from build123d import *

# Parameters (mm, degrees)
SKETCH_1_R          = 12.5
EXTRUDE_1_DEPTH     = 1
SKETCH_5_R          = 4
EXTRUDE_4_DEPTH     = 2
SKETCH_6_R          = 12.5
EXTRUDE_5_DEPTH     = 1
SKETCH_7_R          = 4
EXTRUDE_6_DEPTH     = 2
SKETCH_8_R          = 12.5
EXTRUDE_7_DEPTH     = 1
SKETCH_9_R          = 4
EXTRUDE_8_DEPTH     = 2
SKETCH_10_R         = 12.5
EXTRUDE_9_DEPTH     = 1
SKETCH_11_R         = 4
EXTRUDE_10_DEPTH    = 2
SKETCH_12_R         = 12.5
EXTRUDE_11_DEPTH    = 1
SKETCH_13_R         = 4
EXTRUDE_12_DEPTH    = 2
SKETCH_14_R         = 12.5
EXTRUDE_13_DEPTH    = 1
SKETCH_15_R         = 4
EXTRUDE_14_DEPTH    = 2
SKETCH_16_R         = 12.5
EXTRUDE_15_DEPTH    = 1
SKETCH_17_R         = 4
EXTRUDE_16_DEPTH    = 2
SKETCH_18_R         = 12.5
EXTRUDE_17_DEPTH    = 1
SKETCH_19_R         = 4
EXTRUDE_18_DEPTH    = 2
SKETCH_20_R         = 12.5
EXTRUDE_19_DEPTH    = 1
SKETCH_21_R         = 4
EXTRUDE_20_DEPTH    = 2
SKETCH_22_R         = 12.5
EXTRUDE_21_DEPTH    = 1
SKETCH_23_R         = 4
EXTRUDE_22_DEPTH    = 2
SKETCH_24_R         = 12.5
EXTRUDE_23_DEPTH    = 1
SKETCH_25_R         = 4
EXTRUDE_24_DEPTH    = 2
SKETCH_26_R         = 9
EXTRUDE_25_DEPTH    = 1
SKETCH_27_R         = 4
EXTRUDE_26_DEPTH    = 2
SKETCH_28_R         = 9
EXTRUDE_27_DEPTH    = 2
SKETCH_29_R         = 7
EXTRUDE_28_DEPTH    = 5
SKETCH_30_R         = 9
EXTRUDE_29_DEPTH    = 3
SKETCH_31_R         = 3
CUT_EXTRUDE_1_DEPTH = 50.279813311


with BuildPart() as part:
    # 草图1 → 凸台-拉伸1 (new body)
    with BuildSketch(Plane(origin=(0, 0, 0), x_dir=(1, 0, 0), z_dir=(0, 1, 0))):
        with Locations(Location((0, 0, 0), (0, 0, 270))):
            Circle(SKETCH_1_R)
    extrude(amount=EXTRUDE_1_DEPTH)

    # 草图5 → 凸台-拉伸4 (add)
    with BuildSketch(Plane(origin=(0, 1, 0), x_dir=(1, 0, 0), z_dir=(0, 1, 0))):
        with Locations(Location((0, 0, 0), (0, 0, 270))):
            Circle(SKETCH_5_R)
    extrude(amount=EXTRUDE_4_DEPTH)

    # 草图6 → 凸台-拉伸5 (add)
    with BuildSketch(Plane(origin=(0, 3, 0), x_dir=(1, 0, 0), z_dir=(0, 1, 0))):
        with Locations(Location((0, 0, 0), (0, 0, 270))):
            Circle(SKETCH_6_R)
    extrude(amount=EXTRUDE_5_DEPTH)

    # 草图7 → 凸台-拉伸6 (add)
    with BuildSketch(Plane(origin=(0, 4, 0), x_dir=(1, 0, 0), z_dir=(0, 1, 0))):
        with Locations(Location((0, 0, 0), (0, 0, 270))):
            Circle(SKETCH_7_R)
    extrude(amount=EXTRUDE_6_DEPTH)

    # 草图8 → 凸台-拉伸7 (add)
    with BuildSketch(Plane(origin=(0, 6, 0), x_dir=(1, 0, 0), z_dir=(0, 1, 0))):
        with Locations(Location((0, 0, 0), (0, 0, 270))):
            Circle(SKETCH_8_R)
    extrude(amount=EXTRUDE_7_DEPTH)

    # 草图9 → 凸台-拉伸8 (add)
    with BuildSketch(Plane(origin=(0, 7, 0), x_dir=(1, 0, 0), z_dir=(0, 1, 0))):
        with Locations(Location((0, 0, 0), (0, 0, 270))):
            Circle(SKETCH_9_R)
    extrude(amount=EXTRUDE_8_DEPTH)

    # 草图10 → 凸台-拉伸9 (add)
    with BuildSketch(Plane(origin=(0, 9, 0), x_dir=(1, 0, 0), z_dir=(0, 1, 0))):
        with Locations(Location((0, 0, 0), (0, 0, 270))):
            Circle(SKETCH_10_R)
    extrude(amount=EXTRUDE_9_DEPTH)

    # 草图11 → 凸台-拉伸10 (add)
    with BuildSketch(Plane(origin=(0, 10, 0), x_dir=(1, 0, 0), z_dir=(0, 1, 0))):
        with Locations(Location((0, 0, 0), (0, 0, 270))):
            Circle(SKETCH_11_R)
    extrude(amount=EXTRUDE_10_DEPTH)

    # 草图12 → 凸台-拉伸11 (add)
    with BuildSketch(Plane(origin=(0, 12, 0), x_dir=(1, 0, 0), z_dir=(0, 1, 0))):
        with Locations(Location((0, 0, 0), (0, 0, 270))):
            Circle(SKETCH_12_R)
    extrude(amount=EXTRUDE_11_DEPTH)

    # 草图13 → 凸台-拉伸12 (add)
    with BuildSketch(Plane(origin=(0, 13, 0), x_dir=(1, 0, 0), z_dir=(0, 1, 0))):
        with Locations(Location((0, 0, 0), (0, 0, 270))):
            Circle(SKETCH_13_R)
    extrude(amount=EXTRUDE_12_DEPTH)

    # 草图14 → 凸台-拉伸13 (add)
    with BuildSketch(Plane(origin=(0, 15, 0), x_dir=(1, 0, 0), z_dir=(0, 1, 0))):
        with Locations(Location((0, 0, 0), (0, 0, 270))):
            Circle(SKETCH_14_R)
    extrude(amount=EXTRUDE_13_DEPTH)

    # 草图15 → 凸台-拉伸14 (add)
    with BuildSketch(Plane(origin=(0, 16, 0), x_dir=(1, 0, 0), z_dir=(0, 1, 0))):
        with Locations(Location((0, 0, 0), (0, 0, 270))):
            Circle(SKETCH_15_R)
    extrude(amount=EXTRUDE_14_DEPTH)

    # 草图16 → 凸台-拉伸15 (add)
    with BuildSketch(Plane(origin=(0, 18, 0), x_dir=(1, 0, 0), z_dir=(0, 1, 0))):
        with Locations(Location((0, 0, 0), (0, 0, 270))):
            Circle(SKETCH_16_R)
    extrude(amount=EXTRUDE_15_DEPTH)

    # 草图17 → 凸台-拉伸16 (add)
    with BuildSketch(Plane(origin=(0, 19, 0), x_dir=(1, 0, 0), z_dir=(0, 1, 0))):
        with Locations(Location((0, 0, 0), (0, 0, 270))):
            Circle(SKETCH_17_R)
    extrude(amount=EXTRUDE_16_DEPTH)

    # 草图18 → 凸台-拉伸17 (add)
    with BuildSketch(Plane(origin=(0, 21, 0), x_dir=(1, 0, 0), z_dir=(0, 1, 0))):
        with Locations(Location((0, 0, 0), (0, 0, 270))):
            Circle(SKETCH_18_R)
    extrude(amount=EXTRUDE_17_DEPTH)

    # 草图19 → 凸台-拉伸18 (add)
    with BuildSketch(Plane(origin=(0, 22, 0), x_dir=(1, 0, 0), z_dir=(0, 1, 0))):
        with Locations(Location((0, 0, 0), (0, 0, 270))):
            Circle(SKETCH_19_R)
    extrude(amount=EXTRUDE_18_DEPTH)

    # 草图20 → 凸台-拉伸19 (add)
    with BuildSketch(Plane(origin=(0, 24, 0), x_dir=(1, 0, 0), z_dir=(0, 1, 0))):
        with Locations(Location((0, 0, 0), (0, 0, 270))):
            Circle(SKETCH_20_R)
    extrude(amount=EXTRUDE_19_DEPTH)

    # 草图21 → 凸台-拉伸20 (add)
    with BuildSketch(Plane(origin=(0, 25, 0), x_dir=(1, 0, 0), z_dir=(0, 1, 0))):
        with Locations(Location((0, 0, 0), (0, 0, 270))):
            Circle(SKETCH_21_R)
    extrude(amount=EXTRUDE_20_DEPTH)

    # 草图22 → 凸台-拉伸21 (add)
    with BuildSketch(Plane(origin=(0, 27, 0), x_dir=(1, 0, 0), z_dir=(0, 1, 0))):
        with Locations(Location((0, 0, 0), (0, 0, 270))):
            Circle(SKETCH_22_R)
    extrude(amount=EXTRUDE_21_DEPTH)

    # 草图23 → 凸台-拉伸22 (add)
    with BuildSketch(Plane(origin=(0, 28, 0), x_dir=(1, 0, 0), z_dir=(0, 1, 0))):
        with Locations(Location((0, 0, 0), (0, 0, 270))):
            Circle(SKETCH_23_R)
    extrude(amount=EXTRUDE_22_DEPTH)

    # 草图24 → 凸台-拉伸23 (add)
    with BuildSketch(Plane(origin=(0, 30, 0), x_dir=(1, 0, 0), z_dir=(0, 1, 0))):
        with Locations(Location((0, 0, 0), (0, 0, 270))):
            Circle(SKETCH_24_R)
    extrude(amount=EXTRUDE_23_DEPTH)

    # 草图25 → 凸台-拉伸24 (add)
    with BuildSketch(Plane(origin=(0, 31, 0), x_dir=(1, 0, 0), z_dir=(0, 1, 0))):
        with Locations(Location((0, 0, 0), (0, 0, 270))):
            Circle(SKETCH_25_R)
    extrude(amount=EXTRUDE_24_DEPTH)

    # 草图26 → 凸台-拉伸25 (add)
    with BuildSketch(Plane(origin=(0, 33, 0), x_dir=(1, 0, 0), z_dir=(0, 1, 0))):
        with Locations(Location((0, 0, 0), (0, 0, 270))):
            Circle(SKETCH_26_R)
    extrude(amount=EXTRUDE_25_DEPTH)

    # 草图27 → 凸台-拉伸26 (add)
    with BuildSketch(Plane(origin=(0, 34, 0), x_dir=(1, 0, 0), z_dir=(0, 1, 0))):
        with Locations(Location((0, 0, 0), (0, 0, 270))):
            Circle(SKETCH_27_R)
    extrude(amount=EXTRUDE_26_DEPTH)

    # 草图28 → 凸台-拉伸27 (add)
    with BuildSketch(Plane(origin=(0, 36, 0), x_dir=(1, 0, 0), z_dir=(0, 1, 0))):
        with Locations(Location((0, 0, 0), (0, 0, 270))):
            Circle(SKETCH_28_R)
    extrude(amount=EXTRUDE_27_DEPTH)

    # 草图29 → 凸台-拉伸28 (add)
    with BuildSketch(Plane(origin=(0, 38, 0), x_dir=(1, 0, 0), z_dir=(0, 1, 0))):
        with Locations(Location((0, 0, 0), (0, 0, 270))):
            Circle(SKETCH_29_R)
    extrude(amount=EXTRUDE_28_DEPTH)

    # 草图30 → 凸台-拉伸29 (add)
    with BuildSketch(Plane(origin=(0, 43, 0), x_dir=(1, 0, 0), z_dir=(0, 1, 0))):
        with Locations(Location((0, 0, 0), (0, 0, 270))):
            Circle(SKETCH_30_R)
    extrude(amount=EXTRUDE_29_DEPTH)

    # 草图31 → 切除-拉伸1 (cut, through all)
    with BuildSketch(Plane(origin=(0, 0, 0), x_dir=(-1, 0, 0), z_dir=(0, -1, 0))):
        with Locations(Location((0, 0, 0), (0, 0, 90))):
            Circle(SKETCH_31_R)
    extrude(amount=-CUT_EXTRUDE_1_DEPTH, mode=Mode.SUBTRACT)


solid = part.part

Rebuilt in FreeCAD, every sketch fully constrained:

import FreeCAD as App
import Part
import Sketcher
Q = App.Units.Quantity

doc = App.newDocument("Part")
body = doc.addObject("PartDesign::Body", "Body")

# Sketch on XZ plane
sketch1 = body.newObject("Sketcher::SketchObject", "Sketch")
sketch1.AttachmentSupport = (doc.getObject("XZ_Plane"), [""])
sketch1.MapMode = "FlatFace"
sketch1.addGeometry(Part.Circle(App.Vector(0, 0, 0), App.Vector(0, 0, 1), 12), False)
sketch1.addConstraint(Sketcher.Constraint("Coincident", 0, 3, -1, 1))
sketch1.addConstraint(Sketcher.Constraint("Diameter", 0, Q("25 mm")))
pad1 = body.newObject("PartDesign::Pad", "Pad")
pad1.Profile = sketch1
pad1.Length = 1
pad1.Reversed = True

# Sketch on XZ plane
sketch2 = body.newObject("Sketcher::SketchObject", "Sketch001")
sketch2.AttachmentSupport = (doc.getObject("XZ_Plane"), [""])
sketch2.MapMode = "FlatFace"
sketch2.AttachmentOffset = App.Placement(App.Vector(0, 0, -1), App.Rotation())
sketch2.addGeometry(Part.Circle(App.Vector(0, 0, 0), App.Vector(0, 0, 1), 4), False)
sketch2.addConstraint(Sketcher.Constraint("Coincident", 0, 3, -1, 1))
sketch2.addConstraint(Sketcher.Constraint("Diameter", 0, Q("8 mm")))
pad2 = body.newObject("PartDesign::Pad", "Pad001")
pad2.Profile = sketch2
pad2.Length = 2
pad2.Reversed = True

# Sketch on XZ plane
sketch3 = body.newObject("Sketcher::SketchObject", "Sketch002")
sketch3.AttachmentSupport = (doc.getObject("XZ_Plane"), [""])
sketch3.MapMode = "FlatFace"
sketch3.AttachmentOffset = App.Placement(App.Vector(0, 0, -3), App.Rotation())
sketch3.addGeometry(Part.Circle(App.Vector(0, 0, 0), App.Vector(0, 0, 1), 12), False)
sketch3.addConstraint(Sketcher.Constraint("Coincident", 0, 3, -1, 1))
sketch3.addConstraint(Sketcher.Constraint("Diameter", 0, Q("25 mm")))
pad3 = body.newObject("PartDesign::Pad", "Pad002")
pad3.Profile = sketch3
pad3.Length = 1
pad3.Reversed = True

# Sketch on XZ plane
sketch4 = body.newObject("Sketcher::SketchObject", "Sketch003")
sketch4.AttachmentSupport = (doc.getObject("XZ_Plane"), [""])
sketch4.MapMode = "FlatFace"
sketch4.AttachmentOffset = App.Placement(App.Vector(0, 0, -4), App.Rotation())
sketch4.addGeometry(Part.Circle(App.Vector(0, 0, 0), App.Vector(0, 0, 1), 4), False)
sketch4.addConstraint(Sketcher.Constraint("Coincident", 0, 3, -1, 1))
sketch4.addConstraint(Sketcher.Constraint("Diameter", 0, Q("8 mm")))
pad4 = body.newObject("PartDesign::Pad", "Pad003")
pad4.Profile = sketch4
pad4.Length = 2
pad4.Reversed = True

# Sketch on XZ plane
sketch5 = body.newObject("Sketcher::SketchObject", "Sketch004")
sketch5.AttachmentSupport = (doc.getObject("XZ_Plane"), [""])
sketch5.MapMode = "FlatFace"
sketch5.AttachmentOffset = App.Placement(App.Vector(0, 0, -6), App.Rotation())
sketch5.addGeometry(Part.Circle(App.Vector(0, 0, 0), App.Vector(0, 0, 1), 12), False)
sketch5.addConstraint(Sketcher.Constraint("Coincident", 0, 3, -1, 1))
sketch5.addConstraint(Sketcher.Constraint("Diameter", 0, Q("25 mm")))
pad5 = body.newObject("PartDesign::Pad", "Pad004")
pad5.Profile = sketch5
pad5.Length = 1
pad5.Reversed = True

# Sketch on XZ plane
sketch6 = body.newObject("Sketcher::SketchObject", "Sketch005")
sketch6.AttachmentSupport = (doc.getObject("XZ_Plane"), [""])
sketch6.MapMode = "FlatFace"
sketch6.AttachmentOffset = App.Placement(App.Vector(0, 0, -7), App.Rotation())
sketch6.addGeometry(Part.Circle(App.Vector(0, 0, 0), App.Vector(0, 0, 1), 4), False)
sketch6.addConstraint(Sketcher.Constraint("Coincident", 0, 3, -1, 1))
sketch6.addConstraint(Sketcher.Constraint("Diameter", 0, Q("8 mm")))
pad6 = body.newObject("PartDesign::Pad", "Pad005")
pad6.Profile = sketch6
pad6.Length = 2
pad6.Reversed = True

# Sketch on XZ plane
sketch7 = body.newObject("Sketcher::SketchObject", "Sketch006")
sketch7.AttachmentSupport = (doc.getObject("XZ_Plane"), [""])
sketch7.MapMode = "FlatFace"
sketch7.AttachmentOffset = App.Placement(App.Vector(0, 0, -9), App.Rotation())
sketch7.addGeometry(Part.Circle(App.Vector(0, 0, 0), App.Vector(0, 0, 1), 12), False)
sketch7.addConstraint(Sketcher.Constraint("Coincident", 0, 3, -1, 1))
sketch7.addConstraint(Sketcher.Constraint("Diameter", 0, Q("25 mm")))
pad7 = body.newObject("PartDesign::Pad", "Pad006")
pad7.Profile = sketch7
pad7.Length = 1
pad7.Reversed = True

# Sketch on XZ plane
sketch8 = body.newObject("Sketcher::SketchObject", "Sketch007")
sketch8.AttachmentSupport = (doc.getObject("XZ_Plane"), [""])
sketch8.MapMode = "FlatFace"
sketch8.AttachmentOffset = App.Placement(App.Vector(0, 0, -10), App.Rotation())
sketch8.addGeometry(Part.Circle(App.Vector(0, 0, 0), App.Vector(0, 0, 1), 4), False)
sketch8.addConstraint(Sketcher.Constraint("Coincident", 0, 3, -1, 1))
sketch8.addConstraint(Sketcher.Constraint("Diameter", 0, Q("8 mm")))
pad8 = body.newObject("PartDesign::Pad", "Pad007")
pad8.Profile = sketch8
pad8.Length = 2
pad8.Reversed = True

# Sketch on XZ plane
sketch9 = body.newObject("Sketcher::SketchObject", "Sketch008")
sketch9.AttachmentSupport = (doc.getObject("XZ_Plane"), [""])
sketch9.MapMode = "FlatFace"
sketch9.AttachmentOffset = App.Placement(App.Vector(0, 0, -12), App.Rotation())
sketch9.addGeometry(Part.Circle(App.Vector(0, 0, 0), App.Vector(0, 0, 1), 12), False)
sketch9.addConstraint(Sketcher.Constraint("Coincident", 0, 3, -1, 1))
sketch9.addConstraint(Sketcher.Constraint("Diameter", 0, Q("25 mm")))
pad9 = body.newObject("PartDesign::Pad", "Pad008")
pad9.Profile = sketch9
pad9.Length = 1
pad9.Reversed = True

# Sketch on XZ plane
sketch10 = body.newObject("Sketcher::SketchObject", "Sketch009")
sketch10.AttachmentSupport = (doc.getObject("XZ_Plane"), [""])
sketch10.MapMode = "FlatFace"
sketch10.AttachmentOffset = App.Placement(App.Vector(0, 0, -13), App.Rotation())
sketch10.addGeometry(Part.Circle(App.Vector(0, 0, 0), App.Vector(0, 0, 1), 4), False)
sketch10.addConstraint(Sketcher.Constraint("Coincident", 0, 3, -1, 1))
sketch10.addConstraint(Sketcher.Constraint("Diameter", 0, Q("8 mm")))
pad10 = body.newObject("PartDesign::Pad", "Pad009")
pad10.Profile = sketch10
pad10.Length = 2
pad10.Reversed = True

# Sketch on XZ plane
sketch11 = body.newObject("Sketcher::SketchObject", "Sketch010")
sketch11.AttachmentSupport = (doc.getObject("XZ_Plane"), [""])
sketch11.MapMode = "FlatFace"
sketch11.AttachmentOffset = App.Placement(App.Vector(0, 0, -15), App.Rotation())
sketch11.addGeometry(Part.Circle(App.Vector(0, 0, 0), App.Vector(0, 0, 1), 12), False)
sketch11.addConstraint(Sketcher.Constraint("Coincident", 0, 3, -1, 1))
sketch11.addConstraint(Sketcher.Constraint("Diameter", 0, Q("25 mm")))
pad11 = body.newObject("PartDesign::Pad", "Pad010")
pad11.Profile = sketch11
pad11.Length = 1
pad11.Reversed = True

# Sketch on XZ plane
sketch12 = body.newObject("Sketcher::SketchObject", "Sketch011")
sketch12.AttachmentSupport = (doc.getObject("XZ_Plane"), [""])
sketch12.MapMode = "FlatFace"
sketch12.AttachmentOffset = App.Placement(App.Vector(0, 0, -16), App.Rotation())
sketch12.addGeometry(Part.Circle(App.Vector(0, 0, 0), App.Vector(0, 0, 1), 4), False)
sketch12.addConstraint(Sketcher.Constraint("Coincident", 0, 3, -1, 1))
sketch12.addConstraint(Sketcher.Constraint("Diameter", 0, Q("8 mm")))
pad12 = body.newObject("PartDesign::Pad", "Pad011")
pad12.Profile = sketch12
pad12.Length = 2
pad12.Reversed = True

# Sketch on XZ plane
sketch13 = body.newObject("Sketcher::SketchObject", "Sketch012")
sketch13.AttachmentSupport = (doc.getObject("XZ_Plane"), [""])
sketch13.MapMode = "FlatFace"
sketch13.AttachmentOffset = App.Placement(App.Vector(0, 0, -18), App.Rotation())
sketch13.addGeometry(Part.Circle(App.Vector(0, 0, 0), App.Vector(0, 0, 1), 12), False)
sketch13.addConstraint(Sketcher.Constraint("Coincident", 0, 3, -1, 1))
sketch13.addConstraint(Sketcher.Constraint("Diameter", 0, Q("25 mm")))
pad13 = body.newObject("PartDesign::Pad", "Pad012")
pad13.Profile = sketch13
pad13.Length = 1
pad13.Reversed = True

# Sketch on XZ plane
sketch14 = body.newObject("Sketcher::SketchObject", "Sketch013")
sketch14.AttachmentSupport = (doc.getObject("XZ_Plane"), [""])
sketch14.MapMode = "FlatFace"
sketch14.AttachmentOffset = App.Placement(App.Vector(0, 0, -19), App.Rotation())
sketch14.addGeometry(Part.Circle(App.Vector(0, 0, 0), App.Vector(0, 0, 1), 4), False)
sketch14.addConstraint(Sketcher.Constraint("Coincident", 0, 3, -1, 1))
sketch14.addConstraint(Sketcher.Constraint("Diameter", 0, Q("8 mm")))
pad14 = body.newObject("PartDesign::Pad", "Pad013")
pad14.Profile = sketch14
pad14.Length = 2
pad14.Reversed = True

# Sketch on XZ plane
sketch15 = body.newObject("Sketcher::SketchObject", "Sketch014")
sketch15.AttachmentSupport = (doc.getObject("XZ_Plane"), [""])
sketch15.MapMode = "FlatFace"
sketch15.AttachmentOffset = App.Placement(App.Vector(0, 0, -21), App.Rotation())
sketch15.addGeometry(Part.Circle(App.Vector(0, 0, 0), App.Vector(0, 0, 1), 12), False)
sketch15.addConstraint(Sketcher.Constraint("Coincident", 0, 3, -1, 1))
sketch15.addConstraint(Sketcher.Constraint("Diameter", 0, Q("25 mm")))
pad15 = body.newObject("PartDesign::Pad", "Pad014")
pad15.Profile = sketch15
pad15.Length = 1
pad15.Reversed = True

# Sketch on XZ plane
sketch16 = body.newObject("Sketcher::SketchObject", "Sketch015")
sketch16.AttachmentSupport = (doc.getObject("XZ_Plane"), [""])
sketch16.MapMode = "FlatFace"
sketch16.AttachmentOffset = App.Placement(App.Vector(0, 0, -22), App.Rotation())
sketch16.addGeometry(Part.Circle(App.Vector(0, 0, 0), App.Vector(0, 0, 1), 4), False)
sketch16.addConstraint(Sketcher.Constraint("Coincident", 0, 3, -1, 1))
sketch16.addConstraint(Sketcher.Constraint("Diameter", 0, Q("8 mm")))
pad16 = body.newObject("PartDesign::Pad", "Pad015")
pad16.Profile = sketch16
pad16.Length = 2
pad16.Reversed = True

# Sketch on XZ plane
sketch17 = body.newObject("Sketcher::SketchObject", "Sketch016")
sketch17.AttachmentSupport = (doc.getObject("XZ_Plane"), [""])
sketch17.MapMode = "FlatFace"
sketch17.AttachmentOffset = App.Placement(App.Vector(0, 0, -24), App.Rotation())
sketch17.addGeometry(Part.Circle(App.Vector(0, 0, 0), App.Vector(0, 0, 1), 12), False)
sketch17.addConstraint(Sketcher.Constraint("Coincident", 0, 3, -1, 1))
sketch17.addConstraint(Sketcher.Constraint("Diameter", 0, Q("25 mm")))
pad17 = body.newObject("PartDesign::Pad", "Pad016")
pad17.Profile = sketch17
pad17.Length = 1
pad17.Reversed = True

# Sketch on XZ plane
sketch18 = body.newObject("Sketcher::SketchObject", "Sketch017")
sketch18.AttachmentSupport = (doc.getObject("XZ_Plane"), [""])
sketch18.MapMode = "FlatFace"
sketch18.AttachmentOffset = App.Placement(App.Vector(0, 0, -25), App.Rotation())
sketch18.addGeometry(Part.Circle(App.Vector(0, 0, 0), App.Vector(0, 0, 1), 4), False)
sketch18.addConstraint(Sketcher.Constraint("Coincident", 0, 3, -1, 1))
sketch18.addConstraint(Sketcher.Constraint("Diameter", 0, Q("8 mm")))
pad18 = body.newObject("PartDesign::Pad", "Pad017")
pad18.Profile = sketch18
pad18.Length = 2
pad18.Reversed = True

# Sketch on XZ plane
sketch19 = body.newObject("Sketcher::SketchObject", "Sketch018")
sketch19.AttachmentSupport = (doc.getObject("XZ_Plane"), [""])
sketch19.MapMode = "FlatFace"
sketch19.AttachmentOffset = App.Placement(App.Vector(0, 0, -27), App.Rotation())
sketch19.addGeometry(Part.Circle(App.Vector(0, 0, 0), App.Vector(0, 0, 1), 12), False)
sketch19.addConstraint(Sketcher.Constraint("Coincident", 0, 3, -1, 1))
sketch19.addConstraint(Sketcher.Constraint("Diameter", 0, Q("25 mm")))
pad19 = body.newObject("PartDesign::Pad", "Pad018")
pad19.Profile = sketch19
pad19.Length = 1
pad19.Reversed = True

# Sketch on XZ plane
sketch20 = body.newObject("Sketcher::SketchObject", "Sketch019")
sketch20.AttachmentSupport = (doc.getObject("XZ_Plane"), [""])
sketch20.MapMode = "FlatFace"
sketch20.AttachmentOffset = App.Placement(App.Vector(0, 0, -28), App.Rotation())
sketch20.addGeometry(Part.Circle(App.Vector(0, 0, 0), App.Vector(0, 0, 1), 4), False)
sketch20.addConstraint(Sketcher.Constraint("Coincident", 0, 3, -1, 1))
sketch20.addConstraint(Sketcher.Constraint("Diameter", 0, Q("8 mm")))
pad20 = body.newObject("PartDesign::Pad", "Pad019")
pad20.Profile = sketch20
pad20.Length = 2
pad20.Reversed = True

# Sketch on XZ plane
sketch21 = body.newObject("Sketcher::SketchObject", "Sketch020")
sketch21.AttachmentSupport = (doc.getObject("XZ_Plane"), [""])
sketch21.MapMode = "FlatFace"
sketch21.AttachmentOffset = App.Placement(App.Vector(0, 0, -30), App.Rotation())
sketch21.addGeometry(Part.Circle(App.Vector(0, 0, 0), App.Vector(0, 0, 1), 12), False)
sketch21.addConstraint(Sketcher.Constraint("Coincident", 0, 3, -1, 1))
sketch21.addConstraint(Sketcher.Constraint("Diameter", 0, Q("25 mm")))
pad21 = body.newObject("PartDesign::Pad", "Pad020")
pad21.Profile = sketch21
pad21.Length = 1
pad21.Reversed = True

# Sketch on XZ plane
sketch22 = body.newObject("Sketcher::SketchObject", "Sketch021")
sketch22.AttachmentSupport = (doc.getObject("XZ_Plane"), [""])
sketch22.MapMode = "FlatFace"
sketch22.AttachmentOffset = App.Placement(App.Vector(0, 0, -31), App.Rotation())
sketch22.addGeometry(Part.Circle(App.Vector(0, 0, 0), App.Vector(0, 0, 1), 4), False)
sketch22.addConstraint(Sketcher.Constraint("Coincident", 0, 3, -1, 1))
sketch22.addConstraint(Sketcher.Constraint("Diameter", 0, Q("8 mm")))
pad22 = body.newObject("PartDesign::Pad", "Pad021")
pad22.Profile = sketch22
pad22.Length = 2
pad22.Reversed = True

# Sketch on XZ plane
sketch23 = body.newObject("Sketcher::SketchObject", "Sketch022")
sketch23.AttachmentSupport = (doc.getObject("XZ_Plane"), [""])
sketch23.MapMode = "FlatFace"
sketch23.AttachmentOffset = App.Placement(App.Vector(0, 0, -33), App.Rotation())
sketch23.addGeometry(Part.Circle(App.Vector(0, 0, 0), App.Vector(0, 0, 1), 9), False)
sketch23.addConstraint(Sketcher.Constraint("Coincident", 0, 3, -1, 1))
sketch23.addConstraint(Sketcher.Constraint("Diameter", 0, Q("18 mm")))
pad23 = body.newObject("PartDesign::Pad", "Pad022")
pad23.Profile = sketch23
pad23.Length = 1
pad23.Reversed = True

# Sketch on XZ plane
sketch24 = body.newObject("Sketcher::SketchObject", "Sketch023")
sketch24.AttachmentSupport = (doc.getObject("XZ_Plane"), [""])
sketch24.MapMode = "FlatFace"
sketch24.AttachmentOffset = App.Placement(App.Vector(0, 0, -34), App.Rotation())
sketch24.addGeometry(Part.Circle(App.Vector(0, 0, 0), App.Vector(0, 0, 1), 4), False)
sketch24.addConstraint(Sketcher.Constraint("Coincident", 0, 3, -1, 1))
sketch24.addConstraint(Sketcher.Constraint("Diameter", 0, Q("8 mm")))
pad24 = body.newObject("PartDesign::Pad", "Pad023")
pad24.Profile = sketch24
pad24.Length = 2
pad24.Reversed = True

# Sketch on XZ plane
sketch25 = body.newObject("Sketcher::SketchObject", "Sketch024")
sketch25.AttachmentSupport = (doc.getObject("XZ_Plane"), [""])
sketch25.MapMode = "FlatFace"
sketch25.AttachmentOffset = App.Placement(App.Vector(0, 0, -36), App.Rotation())
sketch25.addGeometry(Part.Circle(App.Vector(0, 0, 0), App.Vector(0, 0, 1), 9), False)
sketch25.addConstraint(Sketcher.Constraint("Coincident", 0, 3, -1, 1))
sketch25.addConstraint(Sketcher.Constraint("Diameter", 0, Q("18 mm")))
pad25 = body.newObject("PartDesign::Pad", "Pad024")
pad25.Profile = sketch25
pad25.Length = 2
pad25.Reversed = True

# Sketch on XZ plane
sketch26 = body.newObject("Sketcher::SketchObject", "Sketch025")
sketch26.AttachmentSupport = (doc.getObject("XZ_Plane"), [""])
sketch26.MapMode = "FlatFace"
sketch26.AttachmentOffset = App.Placement(App.Vector(0, 0, -38), App.Rotation())
sketch26.addGeometry(Part.Circle(App.Vector(0, 0, 0), App.Vector(0, 0, 1), 7), False)
sketch26.addConstraint(Sketcher.Constraint("Coincident", 0, 3, -1, 1))
sketch26.addConstraint(Sketcher.Constraint("Diameter", 0, Q("14 mm")))
pad26 = body.newObject("PartDesign::Pad", "Pad025")
pad26.Profile = sketch26
pad26.Length = 5
pad26.Reversed = True

# Sketch on XZ plane
sketch27 = body.newObject("Sketcher::SketchObject", "Sketch026")
sketch27.AttachmentSupport = (doc.getObject("XZ_Plane"), [""])
sketch27.MapMode = "FlatFace"
sketch27.AttachmentOffset = App.Placement(App.Vector(0, 0, -43), App.Rotation())
sketch27.addGeometry(Part.Circle(App.Vector(0, 0, 0), App.Vector(0, 0, 1), 9), False)
sketch27.addConstraint(Sketcher.Constraint("Coincident", 0, 3, -1, 1))
sketch27.addConstraint(Sketcher.Constraint("Diameter", 0, Q("18 mm")))
pad27 = body.newObject("PartDesign::Pad", "Pad026")
pad27.Profile = sketch27
pad27.Length = 3
pad27.Reversed = True

# Sketch on XZ plane
sketch28 = body.newObject("Sketcher::SketchObject", "Sketch027")
sketch28.AttachmentSupport = (doc.getObject("XZ_Plane"), [""])
sketch28.MapMode = "FlatFace"
sketch28.addGeometry(Part.Circle(App.Vector(0, 0, 0), App.Vector(0, 0, 1), 3), False)
sketch28.addConstraint(Sketcher.Constraint("Coincident", 0, 3, -1, 1))
sketch28.addConstraint(Sketcher.Constraint("Diameter", 0, Q("6 mm")))
pocket1 = body.newObject("PartDesign::Pocket", "Pocket")
pocket1.Profile = sketch28
pocket1.Type = "ThroughAll"

doc.recompute()
